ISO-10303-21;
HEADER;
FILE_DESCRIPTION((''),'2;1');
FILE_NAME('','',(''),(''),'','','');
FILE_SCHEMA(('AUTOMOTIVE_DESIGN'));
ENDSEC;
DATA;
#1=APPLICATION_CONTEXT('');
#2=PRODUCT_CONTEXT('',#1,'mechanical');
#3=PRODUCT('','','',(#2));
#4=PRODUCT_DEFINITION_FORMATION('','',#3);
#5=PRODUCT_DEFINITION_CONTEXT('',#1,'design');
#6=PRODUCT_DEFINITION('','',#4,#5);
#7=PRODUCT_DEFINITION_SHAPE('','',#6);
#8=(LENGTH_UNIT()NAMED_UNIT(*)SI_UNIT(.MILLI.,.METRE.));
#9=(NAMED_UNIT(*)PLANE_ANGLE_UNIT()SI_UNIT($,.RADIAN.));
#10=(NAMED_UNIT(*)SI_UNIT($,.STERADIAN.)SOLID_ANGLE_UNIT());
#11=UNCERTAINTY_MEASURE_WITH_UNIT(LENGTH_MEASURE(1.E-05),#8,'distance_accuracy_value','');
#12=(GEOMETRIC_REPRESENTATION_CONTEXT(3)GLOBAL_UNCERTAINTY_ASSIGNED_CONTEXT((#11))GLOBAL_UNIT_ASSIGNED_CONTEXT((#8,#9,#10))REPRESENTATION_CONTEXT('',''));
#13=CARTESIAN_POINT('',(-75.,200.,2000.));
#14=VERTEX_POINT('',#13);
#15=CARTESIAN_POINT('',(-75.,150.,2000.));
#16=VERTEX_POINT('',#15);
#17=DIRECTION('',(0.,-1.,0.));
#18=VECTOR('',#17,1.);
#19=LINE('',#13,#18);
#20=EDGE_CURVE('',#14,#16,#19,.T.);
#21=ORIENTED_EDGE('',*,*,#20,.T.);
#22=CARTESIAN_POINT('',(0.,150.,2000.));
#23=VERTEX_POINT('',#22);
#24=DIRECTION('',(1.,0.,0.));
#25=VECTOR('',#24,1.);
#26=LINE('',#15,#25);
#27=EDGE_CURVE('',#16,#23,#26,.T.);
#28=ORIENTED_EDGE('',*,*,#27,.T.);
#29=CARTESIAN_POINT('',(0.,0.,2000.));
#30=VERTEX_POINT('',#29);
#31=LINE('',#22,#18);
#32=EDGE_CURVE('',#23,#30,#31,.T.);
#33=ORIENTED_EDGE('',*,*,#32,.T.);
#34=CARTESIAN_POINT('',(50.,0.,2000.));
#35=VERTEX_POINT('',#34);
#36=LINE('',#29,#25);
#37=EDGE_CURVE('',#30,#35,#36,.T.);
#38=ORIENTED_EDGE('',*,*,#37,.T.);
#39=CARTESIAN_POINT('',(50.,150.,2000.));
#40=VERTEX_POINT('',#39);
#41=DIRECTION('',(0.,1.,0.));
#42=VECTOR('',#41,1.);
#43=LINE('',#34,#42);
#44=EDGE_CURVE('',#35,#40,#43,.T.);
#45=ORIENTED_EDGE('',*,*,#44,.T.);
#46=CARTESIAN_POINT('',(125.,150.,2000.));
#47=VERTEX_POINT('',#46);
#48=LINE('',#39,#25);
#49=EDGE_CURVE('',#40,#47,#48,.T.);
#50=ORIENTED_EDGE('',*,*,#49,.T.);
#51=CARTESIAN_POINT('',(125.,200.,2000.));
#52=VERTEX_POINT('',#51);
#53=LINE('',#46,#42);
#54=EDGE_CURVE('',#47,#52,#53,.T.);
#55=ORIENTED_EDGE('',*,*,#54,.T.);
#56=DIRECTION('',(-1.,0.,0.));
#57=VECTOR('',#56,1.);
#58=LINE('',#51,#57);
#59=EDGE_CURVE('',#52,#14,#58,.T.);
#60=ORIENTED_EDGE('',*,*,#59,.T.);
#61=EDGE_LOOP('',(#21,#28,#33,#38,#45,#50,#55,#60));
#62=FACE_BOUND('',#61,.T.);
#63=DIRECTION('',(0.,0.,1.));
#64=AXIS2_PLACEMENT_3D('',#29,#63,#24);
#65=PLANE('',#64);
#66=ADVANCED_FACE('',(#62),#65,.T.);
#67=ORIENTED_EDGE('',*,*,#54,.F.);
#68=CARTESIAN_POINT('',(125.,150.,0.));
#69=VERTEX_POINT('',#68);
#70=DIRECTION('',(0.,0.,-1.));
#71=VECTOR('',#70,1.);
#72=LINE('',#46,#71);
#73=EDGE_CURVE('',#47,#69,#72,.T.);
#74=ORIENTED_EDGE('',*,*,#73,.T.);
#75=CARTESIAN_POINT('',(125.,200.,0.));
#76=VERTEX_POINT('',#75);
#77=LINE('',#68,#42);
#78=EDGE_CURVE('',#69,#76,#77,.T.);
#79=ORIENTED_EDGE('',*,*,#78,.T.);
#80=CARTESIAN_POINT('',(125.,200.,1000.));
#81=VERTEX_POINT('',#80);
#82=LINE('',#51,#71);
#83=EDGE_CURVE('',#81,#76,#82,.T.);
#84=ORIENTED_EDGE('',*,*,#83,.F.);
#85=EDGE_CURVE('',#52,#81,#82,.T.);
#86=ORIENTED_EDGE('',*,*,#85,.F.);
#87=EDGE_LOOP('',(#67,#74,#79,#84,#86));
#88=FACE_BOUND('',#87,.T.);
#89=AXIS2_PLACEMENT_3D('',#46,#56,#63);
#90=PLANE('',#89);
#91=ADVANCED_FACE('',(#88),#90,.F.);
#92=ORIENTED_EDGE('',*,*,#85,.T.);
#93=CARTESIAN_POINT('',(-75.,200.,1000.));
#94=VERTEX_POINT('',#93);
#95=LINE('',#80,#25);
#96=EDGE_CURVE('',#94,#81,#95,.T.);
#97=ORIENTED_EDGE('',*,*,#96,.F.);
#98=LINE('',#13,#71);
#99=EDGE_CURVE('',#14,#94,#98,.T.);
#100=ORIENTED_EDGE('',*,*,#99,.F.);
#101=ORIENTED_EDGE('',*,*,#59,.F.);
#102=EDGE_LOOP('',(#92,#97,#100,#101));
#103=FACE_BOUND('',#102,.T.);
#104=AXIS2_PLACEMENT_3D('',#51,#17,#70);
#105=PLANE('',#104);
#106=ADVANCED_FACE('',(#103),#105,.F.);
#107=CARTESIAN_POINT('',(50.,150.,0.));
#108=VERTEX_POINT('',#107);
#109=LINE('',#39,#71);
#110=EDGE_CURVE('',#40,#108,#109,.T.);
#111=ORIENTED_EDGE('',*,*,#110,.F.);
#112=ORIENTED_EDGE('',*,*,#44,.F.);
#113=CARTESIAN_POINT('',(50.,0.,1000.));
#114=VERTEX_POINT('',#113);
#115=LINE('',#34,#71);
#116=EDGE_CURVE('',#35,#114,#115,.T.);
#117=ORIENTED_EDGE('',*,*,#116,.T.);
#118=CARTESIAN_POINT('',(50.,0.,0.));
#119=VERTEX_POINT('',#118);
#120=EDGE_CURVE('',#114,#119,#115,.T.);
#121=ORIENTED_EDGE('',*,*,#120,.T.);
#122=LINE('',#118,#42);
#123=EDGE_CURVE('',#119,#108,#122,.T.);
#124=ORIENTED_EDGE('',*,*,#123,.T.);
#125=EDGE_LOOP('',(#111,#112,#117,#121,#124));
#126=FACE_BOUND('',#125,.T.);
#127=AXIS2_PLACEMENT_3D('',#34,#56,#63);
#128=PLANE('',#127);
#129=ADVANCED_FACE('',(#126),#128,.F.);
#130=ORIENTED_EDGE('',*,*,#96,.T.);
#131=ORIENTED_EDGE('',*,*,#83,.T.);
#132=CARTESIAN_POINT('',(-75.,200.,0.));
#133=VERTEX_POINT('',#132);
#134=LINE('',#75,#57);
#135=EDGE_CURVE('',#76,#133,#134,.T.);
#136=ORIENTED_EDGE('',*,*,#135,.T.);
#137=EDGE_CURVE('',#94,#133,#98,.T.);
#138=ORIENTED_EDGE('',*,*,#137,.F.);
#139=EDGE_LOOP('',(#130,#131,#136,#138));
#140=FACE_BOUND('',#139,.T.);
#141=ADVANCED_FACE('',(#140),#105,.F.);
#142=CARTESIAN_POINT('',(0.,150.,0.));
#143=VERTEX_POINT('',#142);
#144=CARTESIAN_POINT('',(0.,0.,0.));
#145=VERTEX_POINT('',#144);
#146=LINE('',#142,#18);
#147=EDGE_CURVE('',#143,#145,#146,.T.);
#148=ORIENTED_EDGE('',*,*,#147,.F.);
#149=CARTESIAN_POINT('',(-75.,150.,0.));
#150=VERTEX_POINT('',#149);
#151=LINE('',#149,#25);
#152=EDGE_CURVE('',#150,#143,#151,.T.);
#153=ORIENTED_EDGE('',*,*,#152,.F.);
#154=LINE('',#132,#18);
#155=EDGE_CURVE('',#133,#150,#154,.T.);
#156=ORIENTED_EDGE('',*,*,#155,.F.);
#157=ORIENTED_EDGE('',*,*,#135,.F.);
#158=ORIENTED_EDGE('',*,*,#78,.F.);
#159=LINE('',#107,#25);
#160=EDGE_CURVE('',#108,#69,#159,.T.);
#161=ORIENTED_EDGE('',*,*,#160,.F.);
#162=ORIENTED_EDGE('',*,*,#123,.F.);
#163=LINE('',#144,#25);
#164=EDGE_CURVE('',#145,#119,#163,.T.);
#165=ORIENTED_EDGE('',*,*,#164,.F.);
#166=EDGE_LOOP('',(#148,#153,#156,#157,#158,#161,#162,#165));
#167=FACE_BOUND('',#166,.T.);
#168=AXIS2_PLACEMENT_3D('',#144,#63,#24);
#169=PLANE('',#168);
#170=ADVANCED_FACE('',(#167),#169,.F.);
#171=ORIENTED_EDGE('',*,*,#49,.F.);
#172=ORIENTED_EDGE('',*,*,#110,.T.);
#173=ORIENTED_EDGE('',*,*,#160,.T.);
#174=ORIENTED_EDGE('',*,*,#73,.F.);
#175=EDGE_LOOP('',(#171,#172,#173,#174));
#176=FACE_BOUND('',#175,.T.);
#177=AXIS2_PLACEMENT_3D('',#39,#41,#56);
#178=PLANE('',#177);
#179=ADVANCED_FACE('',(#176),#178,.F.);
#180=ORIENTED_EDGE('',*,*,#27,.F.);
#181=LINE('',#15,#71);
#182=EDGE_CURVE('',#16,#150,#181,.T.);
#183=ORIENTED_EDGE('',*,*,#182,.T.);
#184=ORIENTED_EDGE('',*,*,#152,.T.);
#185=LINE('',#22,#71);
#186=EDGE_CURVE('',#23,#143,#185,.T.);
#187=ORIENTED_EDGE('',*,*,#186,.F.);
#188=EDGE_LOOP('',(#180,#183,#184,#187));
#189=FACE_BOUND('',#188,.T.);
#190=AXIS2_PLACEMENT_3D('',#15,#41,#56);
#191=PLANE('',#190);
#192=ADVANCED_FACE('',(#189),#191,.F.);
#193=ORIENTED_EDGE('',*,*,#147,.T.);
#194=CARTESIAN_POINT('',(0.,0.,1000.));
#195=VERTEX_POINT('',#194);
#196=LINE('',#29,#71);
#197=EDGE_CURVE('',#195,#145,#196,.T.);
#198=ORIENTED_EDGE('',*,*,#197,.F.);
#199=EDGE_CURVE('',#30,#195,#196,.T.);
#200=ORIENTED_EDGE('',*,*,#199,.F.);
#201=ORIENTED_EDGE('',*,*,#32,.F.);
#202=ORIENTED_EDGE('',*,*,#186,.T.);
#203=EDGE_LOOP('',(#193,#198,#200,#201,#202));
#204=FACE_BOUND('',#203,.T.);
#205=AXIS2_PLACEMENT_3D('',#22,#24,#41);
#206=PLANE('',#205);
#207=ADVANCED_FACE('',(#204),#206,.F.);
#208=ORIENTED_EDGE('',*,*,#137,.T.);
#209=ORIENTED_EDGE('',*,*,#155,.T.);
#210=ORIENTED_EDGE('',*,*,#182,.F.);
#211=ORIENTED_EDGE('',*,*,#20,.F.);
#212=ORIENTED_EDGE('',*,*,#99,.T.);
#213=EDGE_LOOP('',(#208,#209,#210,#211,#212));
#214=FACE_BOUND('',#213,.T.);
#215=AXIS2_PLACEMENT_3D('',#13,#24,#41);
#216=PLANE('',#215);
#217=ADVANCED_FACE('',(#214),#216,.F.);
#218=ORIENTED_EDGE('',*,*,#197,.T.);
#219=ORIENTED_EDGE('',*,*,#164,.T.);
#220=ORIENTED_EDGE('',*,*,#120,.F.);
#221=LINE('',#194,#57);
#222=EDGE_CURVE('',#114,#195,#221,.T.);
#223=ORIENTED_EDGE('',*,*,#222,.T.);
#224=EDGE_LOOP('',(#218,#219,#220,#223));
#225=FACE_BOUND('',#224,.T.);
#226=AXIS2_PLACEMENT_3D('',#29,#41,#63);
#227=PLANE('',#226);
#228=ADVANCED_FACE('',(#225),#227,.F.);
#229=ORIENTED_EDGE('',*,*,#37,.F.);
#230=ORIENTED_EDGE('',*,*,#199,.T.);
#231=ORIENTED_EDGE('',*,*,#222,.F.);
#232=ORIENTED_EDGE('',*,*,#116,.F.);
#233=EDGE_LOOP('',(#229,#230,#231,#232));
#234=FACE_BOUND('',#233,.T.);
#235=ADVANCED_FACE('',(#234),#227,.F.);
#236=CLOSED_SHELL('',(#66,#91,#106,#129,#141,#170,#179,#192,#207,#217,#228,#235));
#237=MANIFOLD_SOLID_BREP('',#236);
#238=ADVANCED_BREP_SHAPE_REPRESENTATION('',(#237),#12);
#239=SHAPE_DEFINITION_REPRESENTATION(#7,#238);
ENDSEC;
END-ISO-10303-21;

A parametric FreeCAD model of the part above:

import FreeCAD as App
import Part
import Sketcher
from FreeCAD import Vector

doc = App.newDocument("Part")
body = doc.addObject("PartDesign::Body", "Body")

sketch1 = body.newObject("Sketcher::SketchObject", "Sketch")
sketch1.AttachmentSupport = (doc.getObject("XY_Plane"), [""])
sketch1.MapMode = "FlatFace"
sketch1.addGeometry([
    Part.LineSegment(Vector(0, 0, 0), Vector(50, 0, 0)),
    Part.LineSegment(Vector(50, 0, 0), Vector(50, 150, 0)),
    Part.LineSegment(Vector(50, 150, 0), Vector(125, 150, 0)),
    Part.LineSegment(Vector(125, 150, 0), Vector(125, 200, 0)),
    Part.LineSegment(Vector(125, 200, 0), Vector(-75, 200, 0)),
    Part.LineSegment(Vector(-75, 200, 0), Vector(-75, 150, 0)),
    Part.LineSegment(Vector(-75, 150, 0), Vector(0, 150, 0)),
    Part.LineSegment(Vector(0, 150, 0), Vector(0, 0, 0)),
], False)
sketch1.addConstraint([
    Sketcher.Constraint("Coincident", 0, 2, 1, 1),
    Sketcher.Constraint("Coincident", 1, 2, 2, 1),
    Sketcher.Constraint("Coincident", 2, 2, 3, 1),
    Sketcher.Constraint("Coincident", 3, 2, 4, 1),
    Sketcher.Constraint("Coincident", 4, 2, 5, 1),
    Sketcher.Constraint("Coincident", 5, 2, 6, 1),
    Sketcher.Constraint("Coincident", 6, 2, 7, 1),
    Sketcher.Constraint("Coincident", 7, 2, 0, 1),
    Sketcher.Constraint("Horizontal", 0),
    Sketcher.Constraint("Vertical", 1),
    Sketcher.Constraint("Horizontal", 2),
    Sketcher.Constraint("Vertical", 3),
    Sketcher.Constraint("Horizontal", 4),
    Sketcher.Constraint("Vertical", 5),
    Sketcher.Constraint("Horizontal", 6),
    Sketcher.Constraint("Vertical", 7),
    Sketcher.Constraint("Coincident", 7, 2, -1, 1),
    Sketcher.Constraint("Horizontal", 2, 2, 5, 2),
    Sketcher.Constraint("Equal", 2, 6),
    Sketcher.Constraint("Equal", 0, 3),
    Sketcher.Constraint("DistanceX", 0, 1, 0, 2, 50.0),
    Sketcher.Constraint("DistanceX", 2, 1, 2, 2, 75.0),
    Sketcher.Constraint("DistanceY", 1, 1, 1, 2, 150.0),
])
pad1 = body.newObject("PartDesign::Pad", "Pad")
pad1.Profile = sketch1
pad1.Length = 2000

doc.recompute()
